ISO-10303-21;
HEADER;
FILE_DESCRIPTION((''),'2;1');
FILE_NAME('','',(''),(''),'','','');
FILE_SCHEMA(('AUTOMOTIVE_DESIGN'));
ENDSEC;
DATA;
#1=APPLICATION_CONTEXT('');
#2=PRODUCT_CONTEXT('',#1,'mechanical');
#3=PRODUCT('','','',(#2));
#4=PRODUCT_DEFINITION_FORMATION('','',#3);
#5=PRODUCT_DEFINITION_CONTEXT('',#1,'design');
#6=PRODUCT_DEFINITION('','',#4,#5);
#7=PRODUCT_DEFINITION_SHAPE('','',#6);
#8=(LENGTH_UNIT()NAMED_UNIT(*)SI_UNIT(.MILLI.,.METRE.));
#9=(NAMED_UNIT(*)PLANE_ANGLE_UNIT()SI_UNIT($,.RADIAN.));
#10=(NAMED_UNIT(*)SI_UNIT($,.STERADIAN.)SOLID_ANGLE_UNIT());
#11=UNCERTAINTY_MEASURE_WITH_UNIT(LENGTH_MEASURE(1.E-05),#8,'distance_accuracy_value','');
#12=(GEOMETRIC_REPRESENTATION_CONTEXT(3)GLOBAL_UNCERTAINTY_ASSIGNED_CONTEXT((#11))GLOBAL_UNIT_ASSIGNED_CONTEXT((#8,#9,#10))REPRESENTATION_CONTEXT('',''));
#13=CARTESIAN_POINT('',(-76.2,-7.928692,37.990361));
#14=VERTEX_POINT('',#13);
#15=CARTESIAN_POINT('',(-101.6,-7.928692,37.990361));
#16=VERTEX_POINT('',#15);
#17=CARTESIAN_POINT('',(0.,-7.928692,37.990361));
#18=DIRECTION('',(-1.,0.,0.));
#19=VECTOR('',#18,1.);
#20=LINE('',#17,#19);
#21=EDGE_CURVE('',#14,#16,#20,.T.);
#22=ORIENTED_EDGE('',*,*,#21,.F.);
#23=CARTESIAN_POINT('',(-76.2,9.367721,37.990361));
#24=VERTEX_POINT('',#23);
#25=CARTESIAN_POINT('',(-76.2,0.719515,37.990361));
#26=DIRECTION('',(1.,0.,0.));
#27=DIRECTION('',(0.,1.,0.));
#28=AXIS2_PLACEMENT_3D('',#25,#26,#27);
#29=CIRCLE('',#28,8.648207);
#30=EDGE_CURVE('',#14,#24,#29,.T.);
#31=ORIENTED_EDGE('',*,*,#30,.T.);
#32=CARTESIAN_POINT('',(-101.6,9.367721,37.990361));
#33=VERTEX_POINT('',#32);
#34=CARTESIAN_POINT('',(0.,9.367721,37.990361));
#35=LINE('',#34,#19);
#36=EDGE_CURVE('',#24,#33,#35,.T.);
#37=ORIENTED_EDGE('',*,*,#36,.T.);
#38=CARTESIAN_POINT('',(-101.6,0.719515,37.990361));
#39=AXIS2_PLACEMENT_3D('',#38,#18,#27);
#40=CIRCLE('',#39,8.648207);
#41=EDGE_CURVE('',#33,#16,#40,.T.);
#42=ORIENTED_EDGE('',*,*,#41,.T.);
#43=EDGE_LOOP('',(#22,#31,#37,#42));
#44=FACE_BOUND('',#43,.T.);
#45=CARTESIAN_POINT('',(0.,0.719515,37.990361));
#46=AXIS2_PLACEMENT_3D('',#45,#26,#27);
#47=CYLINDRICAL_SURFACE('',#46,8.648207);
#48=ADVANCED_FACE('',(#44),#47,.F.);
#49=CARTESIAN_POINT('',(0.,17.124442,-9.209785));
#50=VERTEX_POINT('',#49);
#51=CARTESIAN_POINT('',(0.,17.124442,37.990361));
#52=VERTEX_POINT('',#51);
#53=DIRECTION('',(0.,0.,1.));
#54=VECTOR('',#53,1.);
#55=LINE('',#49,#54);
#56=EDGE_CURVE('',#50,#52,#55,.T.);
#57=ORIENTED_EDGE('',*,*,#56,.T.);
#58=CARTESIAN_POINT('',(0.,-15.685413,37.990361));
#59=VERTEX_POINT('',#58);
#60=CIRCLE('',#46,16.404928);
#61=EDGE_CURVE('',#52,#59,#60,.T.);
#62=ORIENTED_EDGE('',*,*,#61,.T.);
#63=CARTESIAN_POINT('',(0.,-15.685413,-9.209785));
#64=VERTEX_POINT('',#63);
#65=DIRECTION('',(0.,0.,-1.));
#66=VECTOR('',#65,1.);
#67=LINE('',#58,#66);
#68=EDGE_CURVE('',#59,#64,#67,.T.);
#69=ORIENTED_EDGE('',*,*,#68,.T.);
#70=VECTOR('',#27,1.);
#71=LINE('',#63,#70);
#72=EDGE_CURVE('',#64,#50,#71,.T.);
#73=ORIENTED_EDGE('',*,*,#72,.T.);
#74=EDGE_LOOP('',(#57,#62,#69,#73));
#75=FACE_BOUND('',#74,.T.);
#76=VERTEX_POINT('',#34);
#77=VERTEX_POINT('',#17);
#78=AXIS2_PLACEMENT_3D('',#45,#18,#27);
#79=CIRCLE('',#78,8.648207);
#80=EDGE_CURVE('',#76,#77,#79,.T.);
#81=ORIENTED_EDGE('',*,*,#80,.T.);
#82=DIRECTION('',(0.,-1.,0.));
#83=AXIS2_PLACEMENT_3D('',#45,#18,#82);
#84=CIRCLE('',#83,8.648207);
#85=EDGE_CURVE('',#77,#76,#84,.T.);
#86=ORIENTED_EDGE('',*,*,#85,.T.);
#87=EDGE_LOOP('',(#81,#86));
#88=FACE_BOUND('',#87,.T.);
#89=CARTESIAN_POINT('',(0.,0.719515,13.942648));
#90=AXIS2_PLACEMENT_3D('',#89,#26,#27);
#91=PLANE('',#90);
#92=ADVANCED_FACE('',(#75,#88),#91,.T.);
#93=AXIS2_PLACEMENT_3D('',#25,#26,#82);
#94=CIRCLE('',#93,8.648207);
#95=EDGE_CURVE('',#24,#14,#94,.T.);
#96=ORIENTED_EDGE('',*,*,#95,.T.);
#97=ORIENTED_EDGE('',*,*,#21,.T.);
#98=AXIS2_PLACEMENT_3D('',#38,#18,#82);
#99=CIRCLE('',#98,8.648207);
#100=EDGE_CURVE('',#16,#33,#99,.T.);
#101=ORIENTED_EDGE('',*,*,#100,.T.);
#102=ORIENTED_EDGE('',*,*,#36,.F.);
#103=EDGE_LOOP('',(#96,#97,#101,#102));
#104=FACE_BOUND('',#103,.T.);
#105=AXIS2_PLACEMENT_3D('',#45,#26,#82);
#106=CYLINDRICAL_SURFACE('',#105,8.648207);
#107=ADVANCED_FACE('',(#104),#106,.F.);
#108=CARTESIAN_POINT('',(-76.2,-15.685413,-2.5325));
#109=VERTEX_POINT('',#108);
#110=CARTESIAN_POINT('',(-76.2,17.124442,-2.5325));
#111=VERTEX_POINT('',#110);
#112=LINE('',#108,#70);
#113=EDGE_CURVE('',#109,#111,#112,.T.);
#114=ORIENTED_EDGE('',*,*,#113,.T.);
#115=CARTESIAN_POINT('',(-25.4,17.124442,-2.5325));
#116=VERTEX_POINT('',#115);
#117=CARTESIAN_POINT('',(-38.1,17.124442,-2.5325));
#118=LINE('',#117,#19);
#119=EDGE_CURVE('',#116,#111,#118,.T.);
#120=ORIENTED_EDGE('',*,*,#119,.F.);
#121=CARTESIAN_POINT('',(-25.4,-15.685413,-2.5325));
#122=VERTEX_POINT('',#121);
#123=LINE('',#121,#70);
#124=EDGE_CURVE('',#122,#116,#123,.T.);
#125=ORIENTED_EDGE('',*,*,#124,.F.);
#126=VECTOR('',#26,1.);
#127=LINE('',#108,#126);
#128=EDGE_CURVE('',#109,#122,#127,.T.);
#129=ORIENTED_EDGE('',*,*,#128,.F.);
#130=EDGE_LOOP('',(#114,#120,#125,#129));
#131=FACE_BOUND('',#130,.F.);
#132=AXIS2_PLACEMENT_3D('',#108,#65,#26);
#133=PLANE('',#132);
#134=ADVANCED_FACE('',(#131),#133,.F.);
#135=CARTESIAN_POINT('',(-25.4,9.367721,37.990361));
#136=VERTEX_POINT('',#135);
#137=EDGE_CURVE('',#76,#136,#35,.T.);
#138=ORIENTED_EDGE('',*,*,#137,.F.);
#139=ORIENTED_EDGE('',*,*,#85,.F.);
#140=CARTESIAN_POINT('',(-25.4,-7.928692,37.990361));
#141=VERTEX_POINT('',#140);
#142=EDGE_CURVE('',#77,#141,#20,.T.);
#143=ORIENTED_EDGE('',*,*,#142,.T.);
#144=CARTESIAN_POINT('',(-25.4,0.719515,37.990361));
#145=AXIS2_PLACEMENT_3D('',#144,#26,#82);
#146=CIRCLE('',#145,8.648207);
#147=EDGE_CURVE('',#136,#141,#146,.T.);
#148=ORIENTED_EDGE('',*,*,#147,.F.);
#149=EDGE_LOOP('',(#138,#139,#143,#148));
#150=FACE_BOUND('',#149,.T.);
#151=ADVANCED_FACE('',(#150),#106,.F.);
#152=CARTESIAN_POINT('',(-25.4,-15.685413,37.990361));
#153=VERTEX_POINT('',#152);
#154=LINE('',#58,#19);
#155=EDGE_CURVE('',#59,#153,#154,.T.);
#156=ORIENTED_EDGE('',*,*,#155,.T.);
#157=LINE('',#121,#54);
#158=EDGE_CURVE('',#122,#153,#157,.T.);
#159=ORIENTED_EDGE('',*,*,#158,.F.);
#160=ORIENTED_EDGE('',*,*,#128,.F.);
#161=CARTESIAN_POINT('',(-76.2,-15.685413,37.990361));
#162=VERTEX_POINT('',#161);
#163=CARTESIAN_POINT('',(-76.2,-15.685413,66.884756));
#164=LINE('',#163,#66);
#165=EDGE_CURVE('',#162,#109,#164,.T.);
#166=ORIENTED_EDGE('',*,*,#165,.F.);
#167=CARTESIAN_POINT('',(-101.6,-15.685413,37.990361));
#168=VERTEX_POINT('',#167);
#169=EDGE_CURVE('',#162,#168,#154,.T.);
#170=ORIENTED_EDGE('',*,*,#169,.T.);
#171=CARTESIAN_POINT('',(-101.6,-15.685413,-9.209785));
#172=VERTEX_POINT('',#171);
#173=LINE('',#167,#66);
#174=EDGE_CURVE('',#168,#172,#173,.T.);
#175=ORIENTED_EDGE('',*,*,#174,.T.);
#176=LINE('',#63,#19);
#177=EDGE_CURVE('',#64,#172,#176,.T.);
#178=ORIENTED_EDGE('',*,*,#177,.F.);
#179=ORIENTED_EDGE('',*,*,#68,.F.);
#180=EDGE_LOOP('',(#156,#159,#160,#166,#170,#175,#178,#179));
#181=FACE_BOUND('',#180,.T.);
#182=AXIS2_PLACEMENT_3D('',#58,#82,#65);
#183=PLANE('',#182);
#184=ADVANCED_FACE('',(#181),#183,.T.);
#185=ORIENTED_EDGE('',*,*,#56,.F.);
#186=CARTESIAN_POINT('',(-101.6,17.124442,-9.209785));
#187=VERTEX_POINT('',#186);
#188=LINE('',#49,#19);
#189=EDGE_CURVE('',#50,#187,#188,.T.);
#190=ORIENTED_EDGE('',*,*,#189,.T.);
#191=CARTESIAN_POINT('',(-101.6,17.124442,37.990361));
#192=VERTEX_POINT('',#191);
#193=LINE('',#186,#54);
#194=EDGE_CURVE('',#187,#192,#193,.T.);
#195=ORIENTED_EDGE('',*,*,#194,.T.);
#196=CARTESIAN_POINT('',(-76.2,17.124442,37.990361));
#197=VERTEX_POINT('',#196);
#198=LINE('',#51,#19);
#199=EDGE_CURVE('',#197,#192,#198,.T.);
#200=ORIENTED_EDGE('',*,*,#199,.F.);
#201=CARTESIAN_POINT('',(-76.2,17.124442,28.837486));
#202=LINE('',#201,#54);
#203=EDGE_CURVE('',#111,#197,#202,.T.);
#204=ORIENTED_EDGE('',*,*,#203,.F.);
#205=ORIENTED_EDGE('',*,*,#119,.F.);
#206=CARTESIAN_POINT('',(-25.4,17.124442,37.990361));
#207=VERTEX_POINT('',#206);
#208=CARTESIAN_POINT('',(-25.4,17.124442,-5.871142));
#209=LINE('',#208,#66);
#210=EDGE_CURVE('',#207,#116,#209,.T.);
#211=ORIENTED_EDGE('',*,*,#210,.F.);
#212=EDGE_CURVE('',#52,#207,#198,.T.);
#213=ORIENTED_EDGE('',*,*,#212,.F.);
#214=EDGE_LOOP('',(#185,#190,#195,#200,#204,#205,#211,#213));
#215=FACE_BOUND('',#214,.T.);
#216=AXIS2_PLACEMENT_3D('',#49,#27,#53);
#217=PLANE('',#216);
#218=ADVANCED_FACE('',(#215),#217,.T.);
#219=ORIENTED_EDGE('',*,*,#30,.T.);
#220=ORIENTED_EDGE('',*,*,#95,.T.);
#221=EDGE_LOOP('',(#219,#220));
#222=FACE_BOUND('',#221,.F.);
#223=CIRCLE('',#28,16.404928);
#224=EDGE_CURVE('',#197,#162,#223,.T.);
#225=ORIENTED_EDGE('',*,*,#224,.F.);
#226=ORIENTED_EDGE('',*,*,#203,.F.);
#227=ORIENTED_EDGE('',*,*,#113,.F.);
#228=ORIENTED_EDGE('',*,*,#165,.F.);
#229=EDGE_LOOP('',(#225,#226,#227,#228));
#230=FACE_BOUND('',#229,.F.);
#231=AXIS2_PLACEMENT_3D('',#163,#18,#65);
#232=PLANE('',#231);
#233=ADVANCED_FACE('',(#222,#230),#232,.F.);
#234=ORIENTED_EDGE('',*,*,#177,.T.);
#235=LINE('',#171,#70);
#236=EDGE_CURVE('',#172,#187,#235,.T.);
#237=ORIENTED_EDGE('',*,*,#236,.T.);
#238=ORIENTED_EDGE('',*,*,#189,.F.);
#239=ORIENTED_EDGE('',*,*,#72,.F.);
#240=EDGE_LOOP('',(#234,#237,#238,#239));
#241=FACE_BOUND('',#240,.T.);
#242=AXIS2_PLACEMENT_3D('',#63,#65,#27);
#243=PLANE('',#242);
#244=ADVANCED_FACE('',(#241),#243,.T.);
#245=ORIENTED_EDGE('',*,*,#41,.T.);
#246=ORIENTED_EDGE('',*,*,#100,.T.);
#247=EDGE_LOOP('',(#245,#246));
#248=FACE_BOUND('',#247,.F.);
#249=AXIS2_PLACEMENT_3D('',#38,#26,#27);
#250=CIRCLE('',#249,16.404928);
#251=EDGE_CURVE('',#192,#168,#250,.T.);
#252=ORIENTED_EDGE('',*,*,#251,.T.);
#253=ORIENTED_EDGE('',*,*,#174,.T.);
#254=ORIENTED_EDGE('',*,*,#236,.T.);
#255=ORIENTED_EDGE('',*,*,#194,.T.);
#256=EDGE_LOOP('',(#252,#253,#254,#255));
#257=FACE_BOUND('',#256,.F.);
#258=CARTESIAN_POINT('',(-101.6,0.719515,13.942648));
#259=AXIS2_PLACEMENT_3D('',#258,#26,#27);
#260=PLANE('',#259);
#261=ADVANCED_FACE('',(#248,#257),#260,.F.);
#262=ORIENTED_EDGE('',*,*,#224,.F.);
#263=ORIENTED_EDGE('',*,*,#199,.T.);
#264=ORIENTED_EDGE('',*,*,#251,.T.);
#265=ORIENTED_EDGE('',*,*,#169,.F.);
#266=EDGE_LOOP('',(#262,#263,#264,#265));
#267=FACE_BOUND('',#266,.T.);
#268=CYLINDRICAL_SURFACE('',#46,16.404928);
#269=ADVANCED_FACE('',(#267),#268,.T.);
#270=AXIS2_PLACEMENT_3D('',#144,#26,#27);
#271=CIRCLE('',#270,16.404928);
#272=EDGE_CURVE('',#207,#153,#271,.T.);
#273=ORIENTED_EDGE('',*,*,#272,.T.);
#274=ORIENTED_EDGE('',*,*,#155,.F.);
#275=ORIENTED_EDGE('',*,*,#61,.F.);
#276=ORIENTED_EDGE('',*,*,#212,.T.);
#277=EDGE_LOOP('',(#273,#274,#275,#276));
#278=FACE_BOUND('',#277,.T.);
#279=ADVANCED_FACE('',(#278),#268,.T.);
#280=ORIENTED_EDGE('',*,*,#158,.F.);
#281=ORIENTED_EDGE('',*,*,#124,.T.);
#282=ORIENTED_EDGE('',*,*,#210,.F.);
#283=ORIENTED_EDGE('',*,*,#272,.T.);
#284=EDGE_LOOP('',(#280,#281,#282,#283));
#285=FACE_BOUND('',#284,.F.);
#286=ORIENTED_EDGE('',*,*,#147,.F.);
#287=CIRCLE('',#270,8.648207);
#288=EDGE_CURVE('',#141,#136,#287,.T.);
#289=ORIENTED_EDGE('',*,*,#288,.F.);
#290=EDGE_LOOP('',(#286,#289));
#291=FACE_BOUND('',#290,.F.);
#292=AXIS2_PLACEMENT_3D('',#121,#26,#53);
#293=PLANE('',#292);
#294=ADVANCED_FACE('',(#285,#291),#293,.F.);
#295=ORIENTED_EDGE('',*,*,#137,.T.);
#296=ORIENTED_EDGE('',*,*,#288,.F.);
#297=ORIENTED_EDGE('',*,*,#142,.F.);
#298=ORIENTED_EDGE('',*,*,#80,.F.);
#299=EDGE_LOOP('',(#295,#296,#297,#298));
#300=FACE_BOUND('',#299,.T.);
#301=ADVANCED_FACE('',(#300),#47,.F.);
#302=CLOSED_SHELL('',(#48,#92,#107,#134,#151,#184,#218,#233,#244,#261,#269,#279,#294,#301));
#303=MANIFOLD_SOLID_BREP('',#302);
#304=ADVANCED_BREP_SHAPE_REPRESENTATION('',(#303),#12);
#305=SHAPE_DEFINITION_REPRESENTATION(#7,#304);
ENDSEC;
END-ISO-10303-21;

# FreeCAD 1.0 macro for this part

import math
import FreeCAD as App
import Part
import Sketcher

V = App.Vector
Q = App.Units.Quantity

doc = App.newDocument("Part")
params = doc.addObject("Spreadsheet::Sheet", "Params")
for row, (alias, value) in enumerate([
    ("pad1_length", "4 in"),
    ("sketch2_width", "2 in"),
], start=1):
    params.set(f"A{row}", alias)
    params.set(f"B{row}", "=" + value)
    params.setAlias(f"B{row}", alias)

body = doc.addObject("PartDesign::Body", "Body")

# Sketch on YZ plane
sketch1 = body.newObject("Sketcher::SketchObject", "Sketch")
sketch1.AttachmentSupport = (doc.getObject("YZ_Plane"), [""])
sketch1.MapMode = "FlatFace"
sketch1.addGeometry(Part.LineSegment(V(-15.685413, 37.990361, 0), V(-15.685413, -9.209785, 0)), False)
sketch1.addGeometry(Part.LineSegment(V(-15.685413, -9.209785, 0), V(17.124442, -9.209785, 0)), False)
sketch1.addGeometry(Part.LineSegment(V(17.124442, -9.209785, 0), V(17.124442, 37.990361, 0)), False)
sketch1.addGeometry(Part.ArcOfCircle(Part.Circle(V(0.719515, 37.990361, 0), V(0, 0, 1), 16.404928), math.radians(0), math.radians(180)), False)
sketch1.addGeometry(Part.ArcOfCircle(Part.Circle(V(0.719515, 37.990361, 0), V(0, 0, 1), 8.648207), math.radians(180), math.radians(360)), False)
sketch1.addGeometry(Part.ArcOfCircle(Part.Circle(V(0.719515, 37.990361, 0), V(0, 0, 1), 8.648207), math.radians(0), math.radians(180)), False)
sketch1.addConstraint(Sketcher.Constraint("Coincident", 0, 2, 1, 1))
sketch1.addConstraint(Sketcher.Constraint("Coincident", 1, 2, 2, 1))
sketch1.addConstraint(Sketcher.Constraint("Tangent", 2, 2, 3, 1))
sketch1.addConstraint(Sketcher.Constraint("Tangent", 3, 2, 0, 1))
sketch1.addConstraint(Sketcher.Constraint("Tangent", 4, 1, 5, 2))
sketch1.addConstraint(Sketcher.Constraint("Coincident", 5, 1, 4, 2))
sketch1.addConstraint(Sketcher.Constraint("Vertical", 0))
sketch1.addConstraint(Sketcher.Constraint("Horizontal", 1))
sketch1.addConstraint(Sketcher.Constraint("Vertical", 2))
sketch1.addConstraint(Sketcher.Constraint("Coincident", 4, 3, 3, 3))
sketch1.addConstraint(Sketcher.Constraint("Horizontal", 3, 2, 4, 1))
sketch1.addConstraint(Sketcher.Constraint("Horizontal", 4, 1, 5, 1))
sketch1.addConstraint(Sketcher.Constraint("Radius", 3, 16.404928))
sketch1.addConstraint(Sketcher.Constraint("Radius", 4, 8.648207))
sketch1.addConstraint(Sketcher.Constraint("DistanceY", 0, 2, 0, 1, 47.200146))
sketch1.addConstraint(Sketcher.Constraint("DistanceY", -1, 1, 3, 3, 37.990361))
sketch1.addConstraint(Sketcher.Constraint("DistanceX", -1, 1, 5, 1, 9.367721))
pad1 = body.newObject("PartDesign::Pad", "Pad")
pad1.Profile = sketch1
pad1.setExpression("Length", "Params.pad1_length")
pad1.Reversed = True

# Sketch on XZ plane
sketch2 = body.newObject("Sketcher::SketchObject", "Sketch001")
sketch2.AttachmentSupport = (doc.getObject("XZ_Plane"), [""])
sketch2.MapMode = "FlatFace"
sketch2.AttachmentOffset = App.Placement(V(0, 0, 15.685413), App.Rotation())
sketch2.addGeometry(Part.LineSegment(V(-76.2, -2.5325, 0), V(-25.4, -2.5325, 0)), False)
sketch2.addGeometry(Part.LineSegment(V(-25.4, -2.5325, 0), V(-25.4, 66.884756, 0)), False)
sketch2.addGeometry(Part.LineSegment(V(-25.4, 66.884756, 0), V(-76.2, 66.884756, 0)), False)
sketch2.addGeometry(Part.LineSegment(V(-76.2, 66.884756, 0), V(-76.2, -2.5325, 0)), False)
sketch2.addConstraint(Sketcher.Constraint("Coincident", 0, 2, 1, 1))
sketch2.addConstraint(Sketcher.Constraint("Coincident", 1, 2, 2, 1))
sketch2.addConstraint(Sketcher.Constraint("Coincident", 2, 2, 3, 1))
sketch2.addConstraint(Sketcher.Constraint("Coincident", 3, 2, 0, 1))
sketch2.addConstraint(Sketcher.Constraint("Horizontal", 0))
sketch2.addConstraint(Sketcher.Constraint("Vertical", 1))
sketch2.addConstraint(Sketcher.Constraint("Horizontal", 2))
sketch2.addConstraint(Sketcher.Constraint("Vertical", 3))
sketch2.addConstraint(Sketcher.Constraint("DistanceX", 0, 1, 0, 2, Q("2 in")))
sketch2.addConstraint(Sketcher.Constraint("DistanceX", 0, 2, -1, 1, Q("1 in")))
sketch2.addConstraint(Sketcher.Constraint("DistanceY", 0, 2, -1, 1, 2.5325))
sketch2.addConstraint(Sketcher.Constraint("DistanceY", 1, 1, 1, 2, 69.417256))
sketch2.setExpression("Constraints[8]", "Params.sketch2_width")
pocket1 = body.newObject("PartDesign::Pocket", "Pocket")
pocket1.Profile = sketch2
pocket1.Type = "ThroughAll"

doc.recompute()
